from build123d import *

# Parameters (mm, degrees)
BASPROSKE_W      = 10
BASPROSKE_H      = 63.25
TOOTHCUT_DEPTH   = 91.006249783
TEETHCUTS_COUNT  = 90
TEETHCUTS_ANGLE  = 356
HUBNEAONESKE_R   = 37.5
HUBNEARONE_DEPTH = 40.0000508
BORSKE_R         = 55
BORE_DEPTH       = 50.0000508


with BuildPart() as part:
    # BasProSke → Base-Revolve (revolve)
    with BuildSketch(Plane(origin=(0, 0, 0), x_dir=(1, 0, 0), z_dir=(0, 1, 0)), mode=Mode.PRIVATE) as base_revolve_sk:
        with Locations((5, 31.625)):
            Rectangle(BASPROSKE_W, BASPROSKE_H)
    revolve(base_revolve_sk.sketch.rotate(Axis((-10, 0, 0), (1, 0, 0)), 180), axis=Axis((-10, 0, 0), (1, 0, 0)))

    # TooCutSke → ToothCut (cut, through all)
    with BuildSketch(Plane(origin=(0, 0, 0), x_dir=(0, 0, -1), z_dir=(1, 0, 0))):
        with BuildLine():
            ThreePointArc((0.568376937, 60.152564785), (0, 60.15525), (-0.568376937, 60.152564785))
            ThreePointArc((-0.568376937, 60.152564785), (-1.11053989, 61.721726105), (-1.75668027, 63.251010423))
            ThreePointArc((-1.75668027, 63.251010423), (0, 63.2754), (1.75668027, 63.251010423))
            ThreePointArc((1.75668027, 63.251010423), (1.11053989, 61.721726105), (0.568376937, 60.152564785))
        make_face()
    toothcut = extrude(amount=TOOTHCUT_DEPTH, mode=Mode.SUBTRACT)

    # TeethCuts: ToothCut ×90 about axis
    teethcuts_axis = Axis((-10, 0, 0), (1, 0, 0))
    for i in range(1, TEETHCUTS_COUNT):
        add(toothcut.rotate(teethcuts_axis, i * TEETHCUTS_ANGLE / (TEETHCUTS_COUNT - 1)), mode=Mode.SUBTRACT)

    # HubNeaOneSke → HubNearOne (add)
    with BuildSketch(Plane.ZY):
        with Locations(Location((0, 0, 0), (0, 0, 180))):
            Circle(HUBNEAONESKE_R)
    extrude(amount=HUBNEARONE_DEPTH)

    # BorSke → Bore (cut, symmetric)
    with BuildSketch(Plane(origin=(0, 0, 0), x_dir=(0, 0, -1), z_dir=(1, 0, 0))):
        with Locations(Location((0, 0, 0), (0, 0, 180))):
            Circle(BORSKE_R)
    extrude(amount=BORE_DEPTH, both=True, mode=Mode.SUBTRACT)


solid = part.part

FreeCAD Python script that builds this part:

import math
import FreeCAD as App
import Part
import Sketcher
from FreeCAD import Vector
Q = App.Units.Quantity


def add_polygon(sketch, points):
    """Adds a closed chain of lines whose ends are joined by coincident constraints."""
    first, n = sketch.GeometryCount, len(points)
    for a, b in zip(points, points[1:] + points[:1]):
        sketch.addGeometry(Part.LineSegment(App.Vector(*a, 0), App.Vector(*b, 0)), False)
    for i in range(n):
        sketch.addConstraint(Sketcher.Constraint("Coincident", first + i, 2, first + (i + 1) % n, 1))

doc = App.newDocument("Part")
body = doc.addObject("PartDesign::Body", "Body")

# Sketch on XZ plane
sketch1 = body.newObject("Sketcher::SketchObject", "Sketch")
sketch1.AttachmentSupport = (doc.getObject("XZ_Plane"), [""])
sketch1.MapMode = "FlatFace"
add_polygon(sketch1, [(0, -63), (0, 0), (10, 0), (10, -63)])  # lines 0-3
sketch1.addConstraint(Sketcher.Constraint("Vertical", 0))
sketch1.addConstraint(Sketcher.Constraint("Horizontal", 1))
sketch1.addConstraint(Sketcher.Constraint("Vertical", 2))
sketch1.addConstraint(Sketcher.Constraint("Horizontal", 3))
sketch1.addConstraint(Sketcher.Constraint("Coincident", 0, 2, -1, 1))
sketch1.addConstraint(Sketcher.Constraint("DistanceX", 1, 1, 1, 2, Q("10 mm")))
sketch1.addConstraint(Sketcher.Constraint("DistanceY", 0, 1, 0, 2, Q("63.25 mm")))
revolution = body.newObject("PartDesign::Revolution", "Revolution")
revolution.Profile = sketch1
revolution.ReferenceAxis = (sketch1, ["H_Axis"])
revolution.Angle = 360

# Sketch on YZ plane
sketch2 = body.newObject("Sketcher::SketchObject", "Sketch001")
sketch2.AttachmentSupport = (doc.getObject("YZ_Plane"), [""])
sketch2.MapMode = "FlatFace"
sketch2.addGeometry(Part.ArcOfCircle(Part.Circle(Vector(0, 0, 0), Vector(0, 0, 1), 60.2), math.radians(-0.54), math.radians(0.54)), False)
sketch2.addGeometry(Part.ArcOfCircle(Part.Circle(Vector(52.9, -24.2, 0), Vector(0, 0, 1), 24.8), math.radians(65.17), math.radians(72.86)), False)
sketch2.addGeometry(Part.ArcOfCircle(Part.Circle(Vector(0, 0, 0), Vector(0, 0, 1), 63.3), math.radians(-1.59), math.radians(1.59)), False)
sketch2.addGeometry(Part.ArcOfCircle(Part.Circle(Vector(52.9, 24.2, 0), Vector(0, 0, 1), 24.8), math.radians(-72.86), math.radians(-65.17)), False)
sketch2.addConstraint(Sketcher.Constraint("Coincident", 0, 1, 1, 2))
sketch2.addConstraint(Sketcher.Constraint("Coincident", 1, 1, 2, 1))
sketch2.addConstraint(Sketcher.Constraint("Coincident", 2, 2, 3, 2))
sketch2.addConstraint(Sketcher.Constraint("Coincident", 3, 1, 0, 2))
sketch2.addConstraint(Sketcher.Constraint("Coincident", 0, 3, -1, 1))
sketch2.addConstraint(Sketcher.Constraint("Coincident", 2, 3, -1, 1))
sketch2.addConstraint(Sketcher.Constraint("Equal", 1, 3))
sketch2.addConstraint(Sketcher.Constraint("Symmetric", 1, 3, 3, 3, -1))
sketch2.addConstraint(Sketcher.Constraint("Radius", 1, Q("24.75 mm")))
sketch2.addConstraint(Sketcher.Constraint("Radius", 2, Q("63.275399 mm")))
sketch2.addConstraint(Sketcher.Constraint("Radius", 0, Q("60.155249 mm")))
sketch2.addConstraint(Sketcher.Constraint("DistanceX", -1, 1, 1, 3, Q("52.85913 mm")))
sketch2.addConstraint(Sketcher.Constraint("DistanceY", 1, 1, -1, 1, Q("1.75668 mm")))
pocket1 = body.newObject("PartDesign::Pocket", "Pocket")
pocket1.Profile = sketch2
pocket1.Type = "ThroughAll"
pocket1.Reversed = True
doc.recompute()

polarpattern = body.newObject("PartDesign::PolarPattern", "PolarPattern")
polarpattern.Originals = [pocket1]
polarpattern.Axis = (doc.getObject("X_Axis"), [""])
polarpattern.Angle = 360
polarpattern.Occurrences = 90
body.Tip = polarpattern

# Sketch on YZ plane
sketch3 = body.newObject("Sketcher::SketchObject", "Sketch002")
sketch3.AttachmentSupport = (doc.getObject("YZ_Plane"), [""])
sketch3.MapMode = "FlatFace"
sketch3.addGeometry(Part.Circle(Vector(0, 0, 0), Vector(0, 0, 1), 38), False)
sketch3.addConstraint(Sketcher.Constraint("Coincident", 0, 3, -1, 1))
sketch3.addConstraint(Sketcher.Constraint("Diameter", 0, Q("75 mm")))
pad1 = body.newObject("PartDesign::Pad", "Pad")
pad1.Profile = sketch3
pad1.Length = 40.000051
pad1.Reversed = True

# Sketch on YZ plane
sketch4 = body.newObject("Sketcher::SketchObject", "Sketch003")
sketch4.AttachmentSupport = (doc.getObject("YZ_Plane"), [""])
sketch4.MapMode = "FlatFace"
sketch4.addGeometry(Part.Circle(Vector(0, 0, 0), Vector(0, 0, 1), 55), False)
sketch4.addConstraint(Sketcher.Constraint("Coincident", 0, 3, -1, 1))
sketch4.addConstraint(Sketcher.Constraint("Diameter", 0, Q("110 mm")))
pocket2 = body.newObject("PartDesign::Pocket", "Pocket001")
pocket2.Profile = sketch4
pocket2.Length = 100.000102
pocket2.Midplane = True

doc.recompute()
